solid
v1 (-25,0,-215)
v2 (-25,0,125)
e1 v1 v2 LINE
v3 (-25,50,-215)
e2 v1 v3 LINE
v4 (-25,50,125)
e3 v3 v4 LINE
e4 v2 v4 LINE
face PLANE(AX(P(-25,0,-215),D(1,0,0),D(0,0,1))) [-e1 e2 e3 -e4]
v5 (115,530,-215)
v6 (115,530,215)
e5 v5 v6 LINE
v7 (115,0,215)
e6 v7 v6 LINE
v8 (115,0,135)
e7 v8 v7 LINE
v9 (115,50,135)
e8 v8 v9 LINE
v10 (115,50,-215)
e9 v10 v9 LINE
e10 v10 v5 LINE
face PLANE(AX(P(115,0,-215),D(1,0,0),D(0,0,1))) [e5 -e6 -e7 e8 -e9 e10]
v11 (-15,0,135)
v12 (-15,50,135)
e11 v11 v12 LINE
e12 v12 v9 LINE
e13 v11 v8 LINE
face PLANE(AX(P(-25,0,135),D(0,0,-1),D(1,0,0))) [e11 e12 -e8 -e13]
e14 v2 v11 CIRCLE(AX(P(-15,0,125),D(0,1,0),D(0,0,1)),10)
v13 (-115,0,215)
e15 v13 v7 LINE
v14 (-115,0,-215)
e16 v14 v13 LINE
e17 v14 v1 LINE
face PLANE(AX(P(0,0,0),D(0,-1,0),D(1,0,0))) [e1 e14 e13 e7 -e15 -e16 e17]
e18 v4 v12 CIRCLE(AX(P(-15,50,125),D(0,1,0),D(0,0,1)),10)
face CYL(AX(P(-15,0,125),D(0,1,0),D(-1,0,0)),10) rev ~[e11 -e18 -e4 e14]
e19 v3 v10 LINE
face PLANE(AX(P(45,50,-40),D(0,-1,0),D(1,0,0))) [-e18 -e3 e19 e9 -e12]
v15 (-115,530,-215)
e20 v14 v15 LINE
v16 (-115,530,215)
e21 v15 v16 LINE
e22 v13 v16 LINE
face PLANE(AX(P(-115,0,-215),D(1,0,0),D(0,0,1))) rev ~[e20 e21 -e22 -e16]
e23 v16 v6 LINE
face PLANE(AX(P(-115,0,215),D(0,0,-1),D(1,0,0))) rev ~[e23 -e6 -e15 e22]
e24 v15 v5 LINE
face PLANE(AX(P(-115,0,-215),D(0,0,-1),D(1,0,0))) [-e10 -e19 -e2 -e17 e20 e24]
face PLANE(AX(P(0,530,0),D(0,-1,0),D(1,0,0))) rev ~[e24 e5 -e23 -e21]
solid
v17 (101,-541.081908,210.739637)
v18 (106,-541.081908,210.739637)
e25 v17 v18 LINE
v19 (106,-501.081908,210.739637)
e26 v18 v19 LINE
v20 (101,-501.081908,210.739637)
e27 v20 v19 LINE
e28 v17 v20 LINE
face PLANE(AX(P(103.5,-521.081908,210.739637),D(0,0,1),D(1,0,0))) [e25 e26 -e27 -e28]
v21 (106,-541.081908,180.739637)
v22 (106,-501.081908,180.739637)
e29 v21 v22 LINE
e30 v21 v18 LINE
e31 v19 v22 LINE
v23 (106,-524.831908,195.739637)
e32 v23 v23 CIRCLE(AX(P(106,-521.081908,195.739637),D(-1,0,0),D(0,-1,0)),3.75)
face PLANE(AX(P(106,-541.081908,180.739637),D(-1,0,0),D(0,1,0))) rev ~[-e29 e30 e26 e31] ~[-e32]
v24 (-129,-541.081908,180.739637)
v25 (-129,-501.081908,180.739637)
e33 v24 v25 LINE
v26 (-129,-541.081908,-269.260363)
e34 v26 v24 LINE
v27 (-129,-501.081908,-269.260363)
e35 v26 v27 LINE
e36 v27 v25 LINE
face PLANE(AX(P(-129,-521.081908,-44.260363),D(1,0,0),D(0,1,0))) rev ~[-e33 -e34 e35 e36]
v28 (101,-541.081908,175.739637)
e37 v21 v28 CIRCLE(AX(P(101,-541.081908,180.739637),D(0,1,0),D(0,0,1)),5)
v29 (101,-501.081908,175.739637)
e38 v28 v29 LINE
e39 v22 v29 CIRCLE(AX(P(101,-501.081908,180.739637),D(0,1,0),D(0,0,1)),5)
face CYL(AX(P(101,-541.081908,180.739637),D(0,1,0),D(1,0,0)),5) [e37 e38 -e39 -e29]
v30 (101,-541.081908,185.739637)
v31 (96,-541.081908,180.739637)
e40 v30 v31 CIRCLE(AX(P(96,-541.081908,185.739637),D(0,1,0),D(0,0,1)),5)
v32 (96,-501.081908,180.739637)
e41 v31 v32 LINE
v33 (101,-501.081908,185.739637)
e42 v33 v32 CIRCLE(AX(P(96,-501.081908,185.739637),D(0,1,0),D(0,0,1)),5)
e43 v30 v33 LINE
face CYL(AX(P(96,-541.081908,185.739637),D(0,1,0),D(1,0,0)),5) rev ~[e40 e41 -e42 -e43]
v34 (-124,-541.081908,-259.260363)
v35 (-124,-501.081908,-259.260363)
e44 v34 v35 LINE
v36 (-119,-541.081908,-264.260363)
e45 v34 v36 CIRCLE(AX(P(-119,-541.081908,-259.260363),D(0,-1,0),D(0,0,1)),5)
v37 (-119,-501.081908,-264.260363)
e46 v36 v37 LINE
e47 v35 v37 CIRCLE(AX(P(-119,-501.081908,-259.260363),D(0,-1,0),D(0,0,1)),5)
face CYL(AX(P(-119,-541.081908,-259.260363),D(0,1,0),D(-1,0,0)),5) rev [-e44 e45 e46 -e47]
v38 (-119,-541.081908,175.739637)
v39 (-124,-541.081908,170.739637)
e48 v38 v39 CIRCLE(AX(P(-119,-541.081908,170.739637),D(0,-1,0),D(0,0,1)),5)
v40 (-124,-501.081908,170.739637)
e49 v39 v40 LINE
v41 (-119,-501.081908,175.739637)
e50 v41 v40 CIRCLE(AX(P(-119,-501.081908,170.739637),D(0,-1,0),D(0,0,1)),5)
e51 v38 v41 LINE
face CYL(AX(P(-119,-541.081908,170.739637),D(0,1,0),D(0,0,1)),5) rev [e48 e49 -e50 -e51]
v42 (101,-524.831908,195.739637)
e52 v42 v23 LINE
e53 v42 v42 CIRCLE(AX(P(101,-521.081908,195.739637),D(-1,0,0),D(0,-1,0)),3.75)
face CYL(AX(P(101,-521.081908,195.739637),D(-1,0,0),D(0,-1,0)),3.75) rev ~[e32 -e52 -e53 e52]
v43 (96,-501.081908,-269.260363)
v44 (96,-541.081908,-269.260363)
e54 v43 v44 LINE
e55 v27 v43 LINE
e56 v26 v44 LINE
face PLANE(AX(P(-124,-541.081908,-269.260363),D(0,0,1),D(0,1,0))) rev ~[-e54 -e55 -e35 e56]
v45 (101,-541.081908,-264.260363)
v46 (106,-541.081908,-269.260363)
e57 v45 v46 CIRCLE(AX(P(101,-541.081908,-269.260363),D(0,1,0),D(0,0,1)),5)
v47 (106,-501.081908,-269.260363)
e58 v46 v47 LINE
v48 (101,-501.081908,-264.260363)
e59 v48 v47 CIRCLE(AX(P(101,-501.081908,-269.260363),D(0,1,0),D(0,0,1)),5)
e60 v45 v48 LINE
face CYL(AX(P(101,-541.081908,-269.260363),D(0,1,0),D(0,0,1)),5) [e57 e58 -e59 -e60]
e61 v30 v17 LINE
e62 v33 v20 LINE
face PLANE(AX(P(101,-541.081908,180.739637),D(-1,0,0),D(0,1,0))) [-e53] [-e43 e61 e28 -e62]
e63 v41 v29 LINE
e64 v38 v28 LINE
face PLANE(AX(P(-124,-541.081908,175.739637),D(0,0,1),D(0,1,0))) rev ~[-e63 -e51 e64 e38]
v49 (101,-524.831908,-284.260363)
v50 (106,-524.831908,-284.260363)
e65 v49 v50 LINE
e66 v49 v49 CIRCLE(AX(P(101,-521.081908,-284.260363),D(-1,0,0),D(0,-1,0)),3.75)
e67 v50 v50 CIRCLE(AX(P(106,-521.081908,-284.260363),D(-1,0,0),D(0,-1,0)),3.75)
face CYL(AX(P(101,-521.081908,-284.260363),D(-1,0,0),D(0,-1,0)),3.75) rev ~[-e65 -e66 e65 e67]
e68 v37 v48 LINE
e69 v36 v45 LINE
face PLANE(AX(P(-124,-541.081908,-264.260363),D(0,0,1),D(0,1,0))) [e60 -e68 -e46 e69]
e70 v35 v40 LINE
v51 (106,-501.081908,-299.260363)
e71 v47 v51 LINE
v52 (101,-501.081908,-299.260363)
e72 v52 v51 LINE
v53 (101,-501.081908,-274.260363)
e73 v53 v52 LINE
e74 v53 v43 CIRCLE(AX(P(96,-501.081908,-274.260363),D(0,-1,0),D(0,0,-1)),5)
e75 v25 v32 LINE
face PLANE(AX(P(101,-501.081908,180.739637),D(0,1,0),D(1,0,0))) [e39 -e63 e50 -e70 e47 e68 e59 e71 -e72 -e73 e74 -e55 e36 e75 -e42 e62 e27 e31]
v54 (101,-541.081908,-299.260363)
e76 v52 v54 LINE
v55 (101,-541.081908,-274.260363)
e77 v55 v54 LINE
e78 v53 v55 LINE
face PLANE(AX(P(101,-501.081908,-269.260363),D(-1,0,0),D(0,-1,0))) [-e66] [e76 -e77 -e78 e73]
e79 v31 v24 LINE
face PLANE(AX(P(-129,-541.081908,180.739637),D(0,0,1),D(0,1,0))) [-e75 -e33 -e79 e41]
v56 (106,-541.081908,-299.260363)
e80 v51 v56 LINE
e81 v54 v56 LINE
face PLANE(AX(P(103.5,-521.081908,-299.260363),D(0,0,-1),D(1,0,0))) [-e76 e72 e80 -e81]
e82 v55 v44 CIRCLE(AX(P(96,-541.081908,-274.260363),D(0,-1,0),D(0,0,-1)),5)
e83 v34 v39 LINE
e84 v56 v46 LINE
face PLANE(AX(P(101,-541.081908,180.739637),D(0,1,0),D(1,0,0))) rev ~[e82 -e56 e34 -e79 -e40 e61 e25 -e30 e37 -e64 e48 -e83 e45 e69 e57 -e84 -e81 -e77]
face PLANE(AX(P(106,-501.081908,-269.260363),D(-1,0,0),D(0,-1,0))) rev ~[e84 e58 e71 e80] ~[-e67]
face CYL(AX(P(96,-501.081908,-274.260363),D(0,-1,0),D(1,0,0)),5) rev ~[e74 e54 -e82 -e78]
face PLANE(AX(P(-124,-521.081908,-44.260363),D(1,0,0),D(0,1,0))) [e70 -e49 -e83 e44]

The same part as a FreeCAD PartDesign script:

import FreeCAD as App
import Part
import Sketcher
from FreeCAD import Vector


def edges_at(feature, points):
    """Names of the edges that pass closest to the given points."""
    edges = feature.Shape.Edges
    near = lambda p: min(range(len(edges)), key=lambda i: edges[i].distToShape(Part.Vertex(*p))[0])
    return sorted({f"Edge{near(p) + 1}" for p in points})

doc = App.newDocument("Part")
body = doc.addObject("PartDesign::Body", "Body")

# Sketch on XZ plane
sketch1 = body.newObject("Sketcher::SketchObject", "Sketch")
sketch1.AttachmentSupport = (doc.getObject("XZ_Plane"), [""])
sketch1.MapMode = "FlatFace"
sketch1.addGeometry([
    Part.LineSegment(Vector(-115, 215, 0), Vector(-115, -215, 0)),
    Part.LineSegment(Vector(-115, -215, 0), Vector(115, -215, 0)),
    Part.LineSegment(Vector(115, -215, 0), Vector(115, 215, 0)),
    Part.LineSegment(Vector(115, 215, 0), Vector(-115, 215, 0)),
], False)
sketch1.addConstraint([
    Sketcher.Constraint("Coincident", 0, 2, 1, 1),
    Sketcher.Constraint("Coincident", 1, 2, 2, 1),
    Sketcher.Constraint("Coincident", 2, 2, 3, 1),
    Sketcher.Constraint("Coincident", 3, 2, 0, 1),
    Sketcher.Constraint("Vertical", 0),
    Sketcher.Constraint("Horizontal", 1),
    Sketcher.Constraint("Vertical", 2),
    Sketcher.Constraint("Horizontal", 3),
    Sketcher.Constraint("Symmetric", 0, 2, 2, 2, -1, 1),
    Sketcher.Constraint("DistanceX", 1, 1, 1, 2, 230.0),
    Sketcher.Constraint("DistanceY", 0, 2, 0, 1, 430.0),
])
pad1 = body.newObject("PartDesign::Pad", "Pad")
pad1.Profile = sketch1
pad1.Length = 530
pad1.Reversed = True

# Sketch on XZ plane
sketch2 = body.newObject("Sketcher::SketchObject", "Sketch001")
sketch2.AttachmentSupport = (doc.getObject("XZ_Plane"), [""])
sketch2.MapMode = "FlatFace"
sketch2.addGeometry([
    Part.LineSegment(Vector(-25, 135, 0), Vector(-25, -215, 0)),
    Part.LineSegment(Vector(-25, -215, 0), Vector(115, -215, 0)),
    Part.LineSegment(Vector(115, -215, 0), Vector(115, 135, 0)),
    Part.LineSegment(Vector(115, 135, 0), Vector(-25, 135, 0)),
], False)
sketch2.addConstraint([
    Sketcher.Constraint("Coincident", 0, 2, 1, 1),
    Sketcher.Constraint("Coincident", 1, 2, 2, 1),
    Sketcher.Constraint("Coincident", 2, 2, 3, 1),
    Sketcher.Constraint("Coincident", 3, 2, 0, 1),
    Sketcher.Constraint("Vertical", 0),
    Sketcher.Constraint("Horizontal", 1),
    Sketcher.Constraint("Vertical", 2),
    Sketcher.Constraint("Horizontal", 3),
    Sketcher.Constraint("DistanceX", 1, 1, 1, 2, 140.0),
    Sketcher.Constraint("DistanceY", 0, 2, 0, 1, 350.0),
    Sketcher.Constraint("DistanceX", 0, 2, -1, 1, 25.0),
    Sketcher.Constraint("DistanceY", 0, 2, -1, 1, 215.0),
])
pocket1 = body.newObject("PartDesign::Pocket", "Pocket")
pocket1.Profile = sketch2
pocket1.Length = 50
doc.recompute()

fillet = body.newObject("PartDesign::Fillet", "Fillet")
fillet.Base = (pocket1, edges_at(pocket1, [(-25, 25, 135)]))
fillet.Radius = 10
body2 = doc.addObject("PartDesign::Body", "Body001")

# Sketch on YZ plane
sketch3 = body2.newObject("Sketcher::SketchObject", "Sketch002")
sketch3.AttachmentSupport = (doc.getObject("YZ_Plane001"), [""])
sketch3.MapMode = "FlatFace"
sketch3.addGeometry([
    Part.LineSegment(Vector(-92, 229, 0), Vector(-92, -221, 0)),
    Part.LineSegment(Vector(-92, -221, 0), Vector(-52, -221, 0)),
    Part.LineSegment(Vector(-52, -221, 0), Vector(-52, 229, 0)),
    Part.LineSegment(Vector(-52, 229, 0), Vector(-92, 229, 0)),
], False)
sketch3.addConstraint([
    Sketcher.Constraint("Coincident", 0, 2, 1, 1),
    Sketcher.Constraint("Coincident", 1, 2, 2, 1),
    Sketcher.Constraint("Coincident", 2, 2, 3, 1),
    Sketcher.Constraint("Coincident", 3, 2, 0, 1),
    Sketcher.Constraint("Vertical", 0),
    Sketcher.Constraint("Horizontal", 1),
    Sketcher.Constraint("Vertical", 2),
    Sketcher.Constraint("Horizontal", 3),
    Sketcher.Constraint("DistanceX", 1, 1, 1, 2, 40.0),
    Sketcher.Constraint("DistanceY", 0, 2, 0, 1, 450.0),
    Sketcher.Constraint("DistanceX", 0, 2, -1, 1, 92.081908),
    Sketcher.Constraint("DistanceY", 0, 2, -1, 1, 221.260363),
])
pad2 = body2.newObject("PartDesign::Pad", "Pad001")
pad2.Profile = sketch3
pad2.Length = 5
body3 = doc.addObject("PartDesign::Body", "Body002")
doc.recompute()

body2.Placement = App.Placement(Vector(-129, -449, -48), App.Rotation(Vector(0, 0, 1), 0))
boolean = body3.newObject("PartDesign::Boolean", "Boolean")
boolean.Type = "Fuse"
boolean.addObjects([body2])

# Sketch on YZ plane
sketch4 = body3.newObject("Sketcher::SketchObject", "Sketch003")
sketch4.AttachmentSupport = (doc.getObject("YZ_Plane002"), [""])
sketch4.MapMode = "FlatFace"
sketch4.AttachmentOffset = App.Placement(Vector(0, 0, -124), App.Rotation())
sketch4.addGeometry([
    Part.LineSegment(Vector(-541, -264, 0), Vector(-541, -269, 0)),  # 0
    Part.LineSegment(Vector(-541, -269, 0), Vector(-501, -269, 0)),  # 1
    Part.LineSegment(Vector(-501, -269, 0), Vector(-501, -264, 0)),  # 2
    Part.LineSegment(Vector(-501, -264, 0), Vector(-541, -264, 0)),  # 3
    Part.LineSegment(Vector(-541, 181, 0), Vector(-541, 176, 0)),  # 4
    Part.LineSegment(Vector(-541, 176, 0), Vector(-501, 176, 0)),  # 5
    Part.LineSegment(Vector(-501, 176, 0), Vector(-501, 181, 0)),  # 6
    Part.LineSegment(Vector(-501, 181, 0), Vector(-541, 181, 0)),  # 7
], False)
sketch4.addConstraint([
    Sketcher.Constraint("Coincident", 0, 2, 1, 1),
    Sketcher.Constraint("Coincident", 1, 2, 2, 1),
    Sketcher.Constraint("Coincident", 2, 2, 3, 1),
    Sketcher.Constraint("Coincident", 3, 2, 0, 1),
    Sketcher.Constraint("Coincident", 4, 2, 5, 1),
    Sketcher.Constraint("Coincident", 5, 2, 6, 1),
    Sketcher.Constraint("Coincident", 6, 2, 7, 1),
    Sketcher.Constraint("Coincident", 7, 2, 4, 1),
    Sketcher.Constraint("Vertical", 0),
    Sketcher.Constraint("Horizontal", 1),
    Sketcher.Constraint("Vertical", 2),
    Sketcher.Constraint("Horizontal", 3),
    Sketcher.Constraint("Vertical", 4),
    Sketcher.Constraint("Horizontal", 5),
    Sketcher.Constraint("Vertical", 6),
    Sketcher.Constraint("Horizontal", 7),
    Sketcher.Constraint("Vertical", 3, 2, 4, 2),
    Sketcher.Constraint("Vertical", 2, 2, 5, 2),
    Sketcher.Constraint("Equal", 2, 4),
    Sketcher.Constraint("DistanceX", 1, 1, 1, 2, 40.0),
    Sketcher.Constraint("DistanceY", 0, 2, 0, 1, 5.0),
    Sketcher.Constraint("DistanceY", 3, 2, 4, 2, 440.0),
    Sketcher.Constraint("DistanceX", 0, 2, -1, 1, 541.081908),
    Sketcher.Constraint("DistanceY", 0, 2, -1, 1, 269.260363),
])
pad3 = body3.newObject("PartDesign::Pad", "Pad002")
pad3.Profile = sketch4
pad3.Length = 230

# Sketch on XY plane
sketch5 = body3.newObject("Sketcher::SketchObject", "Sketch004")
sketch5.AttachmentSupport = (doc.getObject("XY_Plane002"), [""])
sketch5.MapMode = "FlatFace"
sketch5.AttachmentOffset = App.Placement(Vector(0, 0, -269.260363), App.Rotation())
sketch5.addGeometry([
    Part.LineSegment(Vector(101, -541, 0), Vector(101, -501, 0)),
    Part.LineSegment(Vector(101, -501, 0), Vector(106, -501, 0)),
    Part.LineSegment(Vector(106, -501, 0), Vector(106, -541, 0)),
    Part.LineSegment(Vector(106, -541, 0), Vector(101, -541, 0)),
], False)
sketch5.addConstraint([
    Sketcher.Constraint("Coincident", 0, 2, 1, 1),
    Sketcher.Constraint("Coincident", 1, 2, 2, 1),
    Sketcher.Constraint("Coincident", 2, 2, 3, 1),
    Sketcher.Constraint("Coincident", 3, 2, 0, 1),
    Sketcher.Constraint("Vertical", 0),
    Sketcher.Constraint("Horizontal", 1),
    Sketcher.Constraint("Vertical", 2),
    Sketcher.Constraint("Horizontal", 3),
    Sketcher.Constraint("DistanceX", 1, 1, 1, 2, 5.0),
    Sketcher.Constraint("DistanceY", 0, 1, 0, 2, 40.0),
    Sketcher.Constraint("DistanceX", -1, 1, 0, 2, 101.0),
    Sketcher.Constraint("DistanceY", 0, 2, -1, 1, 501.081908),
])
pad4 = body3.newObject("PartDesign::Pad", "Pad003")
pad4.Profile = sketch5
pad4.Length = 30
pad4.Reversed = True

# Sketch on XY plane
sketch6 = body3.newObject("Sketcher::SketchObject", "Sketch005")
sketch6.AttachmentSupport = (doc.getObject("XY_Plane002"), [""])
sketch6.MapMode = "FlatFace"
sketch6.AttachmentOffset = App.Placement(Vector(0, 0, 180.739637), App.Rotation())
sketch6.addGeometry([
    Part.LineSegment(Vector(101, -501, 0), Vector(101, -541, 0)),
    Part.LineSegment(Vector(101, -541, 0), Vector(106, -541, 0)),
    Part.LineSegment(Vector(106, -541, 0), Vector(106, -501, 0)),
    Part.LineSegment(Vector(106, -501, 0), Vector(101, -501, 0)),
], False)
sketch6.addConstraint([
    Sketcher.Constraint("Coincident", 0, 2, 1, 1),
    Sketcher.Constraint("Coincident", 1, 2, 2, 1),
    Sketcher.Constraint("Coincident", 2, 2, 3, 1),
    Sketcher.Constraint("Coincident", 3, 2, 0, 1),
    Sketcher.Constraint("Vertical", 0),
    Sketcher.Constraint("Horizontal", 1),
    Sketcher.Constraint("Vertical", 2),
    Sketcher.Constraint("Horizontal", 3),
    Sketcher.Constraint("DistanceX", 1, 1, 1, 2, 5.0),
    Sketcher.Constraint("DistanceY", 0, 2, 0, 1, 40.0),
    Sketcher.Constraint("DistanceX", -1, 1, 0, 2, 101.0),
    Sketcher.Constraint("DistanceY", 0, 2, -1, 1, 541.081908),
])
pad5 = body3.newObject("PartDesign::Pad", "Pad004")
pad5.Profile = sketch6
pad5.Length = 30
doc.recompute()

fillet2 = body3.newObject("PartDesign::Fillet", "Fillet001")
fillet2.Base = (pad5, edges_at(pad5, [
    (-124, -521.082, -264.26),
    (101, -521.082, -269.26),
    (-124, -521.082, 175.74),
    (101, -521.082, 180.74),
    (106, -521.082, -264.26),
    (106, -521.082, 175.74),
]))
fillet2.Radius = 5

# Sketch on YZ plane
sketch7 = body3.newObject("Sketcher::SketchObject", "Sketch006")
sketch7.AttachmentSupport = (doc.getObject("YZ_Plane002"), [""])
sketch7.MapMode = "FlatFace"
sketch7.AttachmentOffset = App.Placement(Vector(0, 0, 101), App.Rotation())
sketch7.addGeometry(Part.Circle(Vector(-521.1, -284.3, 0), Vector(0, 0, 1), 3.8), False)
sketch7.addConstraint([
    Sketcher.Constraint("Diameter", 0, 7.5),
    Sketcher.Constraint("DistanceX", 0, 3, -1, 1, 521.081908),
    Sketcher.Constraint("DistanceY", 0, 3, -1, 1, 284.260363),
])
pocket2 = body3.newObject("PartDesign::Pocket", "Pocket001")
pocket2.Profile = sketch7
pocket2.Length = 25
pocket2.Reversed = True

# Sketch on YZ plane
sketch8 = body3.newObject("Sketcher::SketchObject", "Sketch007")
sketch8.AttachmentSupport = (doc.getObject("YZ_Plane002"), [""])
sketch8.MapMode = "FlatFace"
sketch8.AttachmentOffset = App.Placement(Vector(0, 0, 101), App.Rotation())
sketch8.addGeometry(Part.Circle(Vector(-521.1, 195.7, 0), Vector(0, 0, 1), 3.8), False)
sketch8.addConstraint([
    Sketcher.Constraint("Diameter", 0, 7.5),
    Sketcher.Constraint("DistanceX", 0, 3, -1, 1, 521.081908),
    Sketcher.Constraint("DistanceY", -1, 1, 0, 3, 195.739637),
])
pocket3 = body3.newObject("PartDesign::Pocket", "Pocket002")
pocket3.Profile = sketch8
pocket3.Length = 25
pocket3.Reversed = True

doc.recompute()
